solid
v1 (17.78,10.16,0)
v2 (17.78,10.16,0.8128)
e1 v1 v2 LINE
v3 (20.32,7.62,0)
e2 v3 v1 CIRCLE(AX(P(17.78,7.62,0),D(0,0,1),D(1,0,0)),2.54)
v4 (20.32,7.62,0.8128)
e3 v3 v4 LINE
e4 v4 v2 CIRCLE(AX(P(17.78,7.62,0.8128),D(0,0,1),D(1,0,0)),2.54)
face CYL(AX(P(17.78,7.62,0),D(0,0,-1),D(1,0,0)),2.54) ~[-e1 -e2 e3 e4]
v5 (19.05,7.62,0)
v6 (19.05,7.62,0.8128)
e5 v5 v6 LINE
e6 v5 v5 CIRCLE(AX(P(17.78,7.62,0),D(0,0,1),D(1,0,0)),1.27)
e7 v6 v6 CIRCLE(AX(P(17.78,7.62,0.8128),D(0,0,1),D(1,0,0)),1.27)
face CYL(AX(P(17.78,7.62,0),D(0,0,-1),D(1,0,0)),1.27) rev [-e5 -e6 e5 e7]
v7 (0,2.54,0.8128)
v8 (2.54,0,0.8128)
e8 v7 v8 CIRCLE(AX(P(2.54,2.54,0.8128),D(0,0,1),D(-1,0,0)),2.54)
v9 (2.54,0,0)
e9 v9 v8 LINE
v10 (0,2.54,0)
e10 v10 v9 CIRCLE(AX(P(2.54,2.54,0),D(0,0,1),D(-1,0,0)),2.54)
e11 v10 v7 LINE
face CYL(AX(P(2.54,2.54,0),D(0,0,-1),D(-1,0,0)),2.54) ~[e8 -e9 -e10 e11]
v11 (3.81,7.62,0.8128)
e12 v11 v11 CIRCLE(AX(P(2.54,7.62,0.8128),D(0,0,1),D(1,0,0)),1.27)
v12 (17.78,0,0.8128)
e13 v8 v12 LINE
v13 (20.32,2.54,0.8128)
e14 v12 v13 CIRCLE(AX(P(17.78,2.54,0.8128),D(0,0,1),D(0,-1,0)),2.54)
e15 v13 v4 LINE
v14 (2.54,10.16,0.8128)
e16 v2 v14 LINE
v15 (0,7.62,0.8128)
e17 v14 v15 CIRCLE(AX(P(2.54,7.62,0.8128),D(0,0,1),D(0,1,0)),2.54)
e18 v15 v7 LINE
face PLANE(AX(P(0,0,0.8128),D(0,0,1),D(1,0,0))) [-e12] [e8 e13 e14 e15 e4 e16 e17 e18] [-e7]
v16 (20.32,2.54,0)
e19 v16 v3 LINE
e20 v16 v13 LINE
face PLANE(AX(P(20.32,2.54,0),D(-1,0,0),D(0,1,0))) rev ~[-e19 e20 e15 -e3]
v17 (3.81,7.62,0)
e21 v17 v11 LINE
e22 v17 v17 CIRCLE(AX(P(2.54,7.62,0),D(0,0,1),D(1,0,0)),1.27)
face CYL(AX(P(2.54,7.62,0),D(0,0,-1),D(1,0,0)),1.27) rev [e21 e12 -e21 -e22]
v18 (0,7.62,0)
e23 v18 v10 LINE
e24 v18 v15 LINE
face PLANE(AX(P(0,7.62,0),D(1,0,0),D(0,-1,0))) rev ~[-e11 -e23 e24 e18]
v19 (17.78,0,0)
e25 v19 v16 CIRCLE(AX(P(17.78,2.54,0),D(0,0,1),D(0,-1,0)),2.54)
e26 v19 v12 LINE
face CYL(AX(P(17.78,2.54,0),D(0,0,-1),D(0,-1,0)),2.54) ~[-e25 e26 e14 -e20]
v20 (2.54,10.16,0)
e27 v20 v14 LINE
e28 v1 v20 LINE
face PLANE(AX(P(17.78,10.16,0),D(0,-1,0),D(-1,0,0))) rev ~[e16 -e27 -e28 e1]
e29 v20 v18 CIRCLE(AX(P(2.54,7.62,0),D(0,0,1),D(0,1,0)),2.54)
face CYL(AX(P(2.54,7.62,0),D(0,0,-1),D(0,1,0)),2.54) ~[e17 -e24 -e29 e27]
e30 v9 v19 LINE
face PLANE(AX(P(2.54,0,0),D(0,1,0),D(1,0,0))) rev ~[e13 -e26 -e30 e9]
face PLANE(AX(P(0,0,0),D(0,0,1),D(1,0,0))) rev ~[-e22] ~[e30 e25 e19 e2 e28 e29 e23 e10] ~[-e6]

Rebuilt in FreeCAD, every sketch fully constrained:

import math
import FreeCAD as App
import Part
import Sketcher

V = App.Vector
Q = App.Units.Quantity

doc = App.newDocument("Part")
body = doc.addObject("PartDesign::Body", "Body")

# Sketch on XY plane
sketch1 = body.newObject("Sketcher::SketchObject", "Sketch")
sketch1.AttachmentSupport = (doc.getObject("XY_Plane"), [""])
sketch1.MapMode = "FlatFace"
sketch1.addGeometry(Part.ArcOfCircle(Part.Circle(V(2.5, 2.5, 0), V(0, 0, 1), 2.5), math.radians(180), math.radians(270)), False)
sketch1.addGeometry(Part.LineSegment(V(2.5, 0, 0), V(17.8, 0, 0)), False)
sketch1.addGeometry(Part.ArcOfCircle(Part.Circle(V(17.8, 2.5, 0), V(0, 0, 1), 2.5), math.radians(-90), math.radians(0)), False)
sketch1.addGeometry(Part.LineSegment(V(20.3, 2.5, 0), V(20.3, 7.6, 0)), False)
sketch1.addGeometry(Part.ArcOfCircle(Part.Circle(V(17.8, 7.6, 0), V(0, 0, 1), 2.5), math.radians(0), math.radians(90)), False)
sketch1.addGeometry(Part.LineSegment(V(17.8, 10.2, 0), V(2.5, 10.2, 0)), False)
sketch1.addGeometry(Part.ArcOfCircle(Part.Circle(V(2.5, 7.6, 0), V(0, 0, 1), 2.5), math.radians(90), math.radians(180)), False)
sketch1.addGeometry(Part.LineSegment(V(0, 7.6, 0), V(0, 2.5, 0)), False)
sketch1.addGeometry(Part.Circle(V(2.5, 7.6, 0), V(0, 0, 1), 1.3), False)
sketch1.addGeometry(Part.Circle(V(17.8, 7.6, 0), V(0, 0, 1), 1.3), False)
sketch1.addConstraint(Sketcher.Constraint("Tangent", 0, 2, 1, 1))
sketch1.addConstraint(Sketcher.Constraint("Tangent", 1, 2, 2, 1))
sketch1.addConstraint(Sketcher.Constraint("Tangent", 2, 2, 3, 1))
sketch1.addConstraint(Sketcher.Constraint("Tangent", 3, 2, 4, 1))
sketch1.addConstraint(Sketcher.Constraint("Tangent", 4, 2, 5, 1))
sketch1.addConstraint(Sketcher.Constraint("Tangent", 5, 2, 6, 1))
sketch1.addConstraint(Sketcher.Constraint("Tangent", 6, 2, 7, 1))
sketch1.addConstraint(Sketcher.Constraint("Tangent", 7, 2, 0, 1))
sketch1.addConstraint(Sketcher.Constraint("Horizontal", 1))
sketch1.addConstraint(Sketcher.Constraint("Vertical", 3))
sketch1.addConstraint(Sketcher.Constraint("Horizontal", 5))
sketch1.addConstraint(Sketcher.Constraint("Vertical", 7))
sketch1.addConstraint(Sketcher.Constraint("Coincident", 8, 3, 6, 3))
sketch1.addConstraint(Sketcher.Constraint("Coincident", 9, 3, 4, 3))
sketch1.addConstraint(Sketcher.Constraint("Equal", 0, 2))
sketch1.addConstraint(Sketcher.Constraint("Equal", 2, 4))
sketch1.addConstraint(Sketcher.Constraint("Equal", 4, 6))
sketch1.addConstraint(Sketcher.Constraint("Equal", 8, 9))
sketch1.addConstraint(Sketcher.Constraint("PointOnObject", 0, 2, -1))
sketch1.addConstraint(Sketcher.Constraint("PointOnObject", 6, 2, -2))
sketch1.addConstraint(Sketcher.Constraint("Diameter", 8, Q("0.1 in")))
sketch1.addConstraint(Sketcher.Constraint("Radius", 0, Q("0.1 in")))
sketch1.addConstraint(Sketcher.Constraint("DistanceX", 1, 1, 1, 2, Q("0.6 in")))
sketch1.addConstraint(Sketcher.Constraint("DistanceY", -1, 1, 4, 2, Q("0.4 in")))
pad1 = body.newObject("PartDesign::Pad", "Pad")
pad1.Profile = sketch1
pad1.Length = Q("0.032 in")

doc.recompute()
